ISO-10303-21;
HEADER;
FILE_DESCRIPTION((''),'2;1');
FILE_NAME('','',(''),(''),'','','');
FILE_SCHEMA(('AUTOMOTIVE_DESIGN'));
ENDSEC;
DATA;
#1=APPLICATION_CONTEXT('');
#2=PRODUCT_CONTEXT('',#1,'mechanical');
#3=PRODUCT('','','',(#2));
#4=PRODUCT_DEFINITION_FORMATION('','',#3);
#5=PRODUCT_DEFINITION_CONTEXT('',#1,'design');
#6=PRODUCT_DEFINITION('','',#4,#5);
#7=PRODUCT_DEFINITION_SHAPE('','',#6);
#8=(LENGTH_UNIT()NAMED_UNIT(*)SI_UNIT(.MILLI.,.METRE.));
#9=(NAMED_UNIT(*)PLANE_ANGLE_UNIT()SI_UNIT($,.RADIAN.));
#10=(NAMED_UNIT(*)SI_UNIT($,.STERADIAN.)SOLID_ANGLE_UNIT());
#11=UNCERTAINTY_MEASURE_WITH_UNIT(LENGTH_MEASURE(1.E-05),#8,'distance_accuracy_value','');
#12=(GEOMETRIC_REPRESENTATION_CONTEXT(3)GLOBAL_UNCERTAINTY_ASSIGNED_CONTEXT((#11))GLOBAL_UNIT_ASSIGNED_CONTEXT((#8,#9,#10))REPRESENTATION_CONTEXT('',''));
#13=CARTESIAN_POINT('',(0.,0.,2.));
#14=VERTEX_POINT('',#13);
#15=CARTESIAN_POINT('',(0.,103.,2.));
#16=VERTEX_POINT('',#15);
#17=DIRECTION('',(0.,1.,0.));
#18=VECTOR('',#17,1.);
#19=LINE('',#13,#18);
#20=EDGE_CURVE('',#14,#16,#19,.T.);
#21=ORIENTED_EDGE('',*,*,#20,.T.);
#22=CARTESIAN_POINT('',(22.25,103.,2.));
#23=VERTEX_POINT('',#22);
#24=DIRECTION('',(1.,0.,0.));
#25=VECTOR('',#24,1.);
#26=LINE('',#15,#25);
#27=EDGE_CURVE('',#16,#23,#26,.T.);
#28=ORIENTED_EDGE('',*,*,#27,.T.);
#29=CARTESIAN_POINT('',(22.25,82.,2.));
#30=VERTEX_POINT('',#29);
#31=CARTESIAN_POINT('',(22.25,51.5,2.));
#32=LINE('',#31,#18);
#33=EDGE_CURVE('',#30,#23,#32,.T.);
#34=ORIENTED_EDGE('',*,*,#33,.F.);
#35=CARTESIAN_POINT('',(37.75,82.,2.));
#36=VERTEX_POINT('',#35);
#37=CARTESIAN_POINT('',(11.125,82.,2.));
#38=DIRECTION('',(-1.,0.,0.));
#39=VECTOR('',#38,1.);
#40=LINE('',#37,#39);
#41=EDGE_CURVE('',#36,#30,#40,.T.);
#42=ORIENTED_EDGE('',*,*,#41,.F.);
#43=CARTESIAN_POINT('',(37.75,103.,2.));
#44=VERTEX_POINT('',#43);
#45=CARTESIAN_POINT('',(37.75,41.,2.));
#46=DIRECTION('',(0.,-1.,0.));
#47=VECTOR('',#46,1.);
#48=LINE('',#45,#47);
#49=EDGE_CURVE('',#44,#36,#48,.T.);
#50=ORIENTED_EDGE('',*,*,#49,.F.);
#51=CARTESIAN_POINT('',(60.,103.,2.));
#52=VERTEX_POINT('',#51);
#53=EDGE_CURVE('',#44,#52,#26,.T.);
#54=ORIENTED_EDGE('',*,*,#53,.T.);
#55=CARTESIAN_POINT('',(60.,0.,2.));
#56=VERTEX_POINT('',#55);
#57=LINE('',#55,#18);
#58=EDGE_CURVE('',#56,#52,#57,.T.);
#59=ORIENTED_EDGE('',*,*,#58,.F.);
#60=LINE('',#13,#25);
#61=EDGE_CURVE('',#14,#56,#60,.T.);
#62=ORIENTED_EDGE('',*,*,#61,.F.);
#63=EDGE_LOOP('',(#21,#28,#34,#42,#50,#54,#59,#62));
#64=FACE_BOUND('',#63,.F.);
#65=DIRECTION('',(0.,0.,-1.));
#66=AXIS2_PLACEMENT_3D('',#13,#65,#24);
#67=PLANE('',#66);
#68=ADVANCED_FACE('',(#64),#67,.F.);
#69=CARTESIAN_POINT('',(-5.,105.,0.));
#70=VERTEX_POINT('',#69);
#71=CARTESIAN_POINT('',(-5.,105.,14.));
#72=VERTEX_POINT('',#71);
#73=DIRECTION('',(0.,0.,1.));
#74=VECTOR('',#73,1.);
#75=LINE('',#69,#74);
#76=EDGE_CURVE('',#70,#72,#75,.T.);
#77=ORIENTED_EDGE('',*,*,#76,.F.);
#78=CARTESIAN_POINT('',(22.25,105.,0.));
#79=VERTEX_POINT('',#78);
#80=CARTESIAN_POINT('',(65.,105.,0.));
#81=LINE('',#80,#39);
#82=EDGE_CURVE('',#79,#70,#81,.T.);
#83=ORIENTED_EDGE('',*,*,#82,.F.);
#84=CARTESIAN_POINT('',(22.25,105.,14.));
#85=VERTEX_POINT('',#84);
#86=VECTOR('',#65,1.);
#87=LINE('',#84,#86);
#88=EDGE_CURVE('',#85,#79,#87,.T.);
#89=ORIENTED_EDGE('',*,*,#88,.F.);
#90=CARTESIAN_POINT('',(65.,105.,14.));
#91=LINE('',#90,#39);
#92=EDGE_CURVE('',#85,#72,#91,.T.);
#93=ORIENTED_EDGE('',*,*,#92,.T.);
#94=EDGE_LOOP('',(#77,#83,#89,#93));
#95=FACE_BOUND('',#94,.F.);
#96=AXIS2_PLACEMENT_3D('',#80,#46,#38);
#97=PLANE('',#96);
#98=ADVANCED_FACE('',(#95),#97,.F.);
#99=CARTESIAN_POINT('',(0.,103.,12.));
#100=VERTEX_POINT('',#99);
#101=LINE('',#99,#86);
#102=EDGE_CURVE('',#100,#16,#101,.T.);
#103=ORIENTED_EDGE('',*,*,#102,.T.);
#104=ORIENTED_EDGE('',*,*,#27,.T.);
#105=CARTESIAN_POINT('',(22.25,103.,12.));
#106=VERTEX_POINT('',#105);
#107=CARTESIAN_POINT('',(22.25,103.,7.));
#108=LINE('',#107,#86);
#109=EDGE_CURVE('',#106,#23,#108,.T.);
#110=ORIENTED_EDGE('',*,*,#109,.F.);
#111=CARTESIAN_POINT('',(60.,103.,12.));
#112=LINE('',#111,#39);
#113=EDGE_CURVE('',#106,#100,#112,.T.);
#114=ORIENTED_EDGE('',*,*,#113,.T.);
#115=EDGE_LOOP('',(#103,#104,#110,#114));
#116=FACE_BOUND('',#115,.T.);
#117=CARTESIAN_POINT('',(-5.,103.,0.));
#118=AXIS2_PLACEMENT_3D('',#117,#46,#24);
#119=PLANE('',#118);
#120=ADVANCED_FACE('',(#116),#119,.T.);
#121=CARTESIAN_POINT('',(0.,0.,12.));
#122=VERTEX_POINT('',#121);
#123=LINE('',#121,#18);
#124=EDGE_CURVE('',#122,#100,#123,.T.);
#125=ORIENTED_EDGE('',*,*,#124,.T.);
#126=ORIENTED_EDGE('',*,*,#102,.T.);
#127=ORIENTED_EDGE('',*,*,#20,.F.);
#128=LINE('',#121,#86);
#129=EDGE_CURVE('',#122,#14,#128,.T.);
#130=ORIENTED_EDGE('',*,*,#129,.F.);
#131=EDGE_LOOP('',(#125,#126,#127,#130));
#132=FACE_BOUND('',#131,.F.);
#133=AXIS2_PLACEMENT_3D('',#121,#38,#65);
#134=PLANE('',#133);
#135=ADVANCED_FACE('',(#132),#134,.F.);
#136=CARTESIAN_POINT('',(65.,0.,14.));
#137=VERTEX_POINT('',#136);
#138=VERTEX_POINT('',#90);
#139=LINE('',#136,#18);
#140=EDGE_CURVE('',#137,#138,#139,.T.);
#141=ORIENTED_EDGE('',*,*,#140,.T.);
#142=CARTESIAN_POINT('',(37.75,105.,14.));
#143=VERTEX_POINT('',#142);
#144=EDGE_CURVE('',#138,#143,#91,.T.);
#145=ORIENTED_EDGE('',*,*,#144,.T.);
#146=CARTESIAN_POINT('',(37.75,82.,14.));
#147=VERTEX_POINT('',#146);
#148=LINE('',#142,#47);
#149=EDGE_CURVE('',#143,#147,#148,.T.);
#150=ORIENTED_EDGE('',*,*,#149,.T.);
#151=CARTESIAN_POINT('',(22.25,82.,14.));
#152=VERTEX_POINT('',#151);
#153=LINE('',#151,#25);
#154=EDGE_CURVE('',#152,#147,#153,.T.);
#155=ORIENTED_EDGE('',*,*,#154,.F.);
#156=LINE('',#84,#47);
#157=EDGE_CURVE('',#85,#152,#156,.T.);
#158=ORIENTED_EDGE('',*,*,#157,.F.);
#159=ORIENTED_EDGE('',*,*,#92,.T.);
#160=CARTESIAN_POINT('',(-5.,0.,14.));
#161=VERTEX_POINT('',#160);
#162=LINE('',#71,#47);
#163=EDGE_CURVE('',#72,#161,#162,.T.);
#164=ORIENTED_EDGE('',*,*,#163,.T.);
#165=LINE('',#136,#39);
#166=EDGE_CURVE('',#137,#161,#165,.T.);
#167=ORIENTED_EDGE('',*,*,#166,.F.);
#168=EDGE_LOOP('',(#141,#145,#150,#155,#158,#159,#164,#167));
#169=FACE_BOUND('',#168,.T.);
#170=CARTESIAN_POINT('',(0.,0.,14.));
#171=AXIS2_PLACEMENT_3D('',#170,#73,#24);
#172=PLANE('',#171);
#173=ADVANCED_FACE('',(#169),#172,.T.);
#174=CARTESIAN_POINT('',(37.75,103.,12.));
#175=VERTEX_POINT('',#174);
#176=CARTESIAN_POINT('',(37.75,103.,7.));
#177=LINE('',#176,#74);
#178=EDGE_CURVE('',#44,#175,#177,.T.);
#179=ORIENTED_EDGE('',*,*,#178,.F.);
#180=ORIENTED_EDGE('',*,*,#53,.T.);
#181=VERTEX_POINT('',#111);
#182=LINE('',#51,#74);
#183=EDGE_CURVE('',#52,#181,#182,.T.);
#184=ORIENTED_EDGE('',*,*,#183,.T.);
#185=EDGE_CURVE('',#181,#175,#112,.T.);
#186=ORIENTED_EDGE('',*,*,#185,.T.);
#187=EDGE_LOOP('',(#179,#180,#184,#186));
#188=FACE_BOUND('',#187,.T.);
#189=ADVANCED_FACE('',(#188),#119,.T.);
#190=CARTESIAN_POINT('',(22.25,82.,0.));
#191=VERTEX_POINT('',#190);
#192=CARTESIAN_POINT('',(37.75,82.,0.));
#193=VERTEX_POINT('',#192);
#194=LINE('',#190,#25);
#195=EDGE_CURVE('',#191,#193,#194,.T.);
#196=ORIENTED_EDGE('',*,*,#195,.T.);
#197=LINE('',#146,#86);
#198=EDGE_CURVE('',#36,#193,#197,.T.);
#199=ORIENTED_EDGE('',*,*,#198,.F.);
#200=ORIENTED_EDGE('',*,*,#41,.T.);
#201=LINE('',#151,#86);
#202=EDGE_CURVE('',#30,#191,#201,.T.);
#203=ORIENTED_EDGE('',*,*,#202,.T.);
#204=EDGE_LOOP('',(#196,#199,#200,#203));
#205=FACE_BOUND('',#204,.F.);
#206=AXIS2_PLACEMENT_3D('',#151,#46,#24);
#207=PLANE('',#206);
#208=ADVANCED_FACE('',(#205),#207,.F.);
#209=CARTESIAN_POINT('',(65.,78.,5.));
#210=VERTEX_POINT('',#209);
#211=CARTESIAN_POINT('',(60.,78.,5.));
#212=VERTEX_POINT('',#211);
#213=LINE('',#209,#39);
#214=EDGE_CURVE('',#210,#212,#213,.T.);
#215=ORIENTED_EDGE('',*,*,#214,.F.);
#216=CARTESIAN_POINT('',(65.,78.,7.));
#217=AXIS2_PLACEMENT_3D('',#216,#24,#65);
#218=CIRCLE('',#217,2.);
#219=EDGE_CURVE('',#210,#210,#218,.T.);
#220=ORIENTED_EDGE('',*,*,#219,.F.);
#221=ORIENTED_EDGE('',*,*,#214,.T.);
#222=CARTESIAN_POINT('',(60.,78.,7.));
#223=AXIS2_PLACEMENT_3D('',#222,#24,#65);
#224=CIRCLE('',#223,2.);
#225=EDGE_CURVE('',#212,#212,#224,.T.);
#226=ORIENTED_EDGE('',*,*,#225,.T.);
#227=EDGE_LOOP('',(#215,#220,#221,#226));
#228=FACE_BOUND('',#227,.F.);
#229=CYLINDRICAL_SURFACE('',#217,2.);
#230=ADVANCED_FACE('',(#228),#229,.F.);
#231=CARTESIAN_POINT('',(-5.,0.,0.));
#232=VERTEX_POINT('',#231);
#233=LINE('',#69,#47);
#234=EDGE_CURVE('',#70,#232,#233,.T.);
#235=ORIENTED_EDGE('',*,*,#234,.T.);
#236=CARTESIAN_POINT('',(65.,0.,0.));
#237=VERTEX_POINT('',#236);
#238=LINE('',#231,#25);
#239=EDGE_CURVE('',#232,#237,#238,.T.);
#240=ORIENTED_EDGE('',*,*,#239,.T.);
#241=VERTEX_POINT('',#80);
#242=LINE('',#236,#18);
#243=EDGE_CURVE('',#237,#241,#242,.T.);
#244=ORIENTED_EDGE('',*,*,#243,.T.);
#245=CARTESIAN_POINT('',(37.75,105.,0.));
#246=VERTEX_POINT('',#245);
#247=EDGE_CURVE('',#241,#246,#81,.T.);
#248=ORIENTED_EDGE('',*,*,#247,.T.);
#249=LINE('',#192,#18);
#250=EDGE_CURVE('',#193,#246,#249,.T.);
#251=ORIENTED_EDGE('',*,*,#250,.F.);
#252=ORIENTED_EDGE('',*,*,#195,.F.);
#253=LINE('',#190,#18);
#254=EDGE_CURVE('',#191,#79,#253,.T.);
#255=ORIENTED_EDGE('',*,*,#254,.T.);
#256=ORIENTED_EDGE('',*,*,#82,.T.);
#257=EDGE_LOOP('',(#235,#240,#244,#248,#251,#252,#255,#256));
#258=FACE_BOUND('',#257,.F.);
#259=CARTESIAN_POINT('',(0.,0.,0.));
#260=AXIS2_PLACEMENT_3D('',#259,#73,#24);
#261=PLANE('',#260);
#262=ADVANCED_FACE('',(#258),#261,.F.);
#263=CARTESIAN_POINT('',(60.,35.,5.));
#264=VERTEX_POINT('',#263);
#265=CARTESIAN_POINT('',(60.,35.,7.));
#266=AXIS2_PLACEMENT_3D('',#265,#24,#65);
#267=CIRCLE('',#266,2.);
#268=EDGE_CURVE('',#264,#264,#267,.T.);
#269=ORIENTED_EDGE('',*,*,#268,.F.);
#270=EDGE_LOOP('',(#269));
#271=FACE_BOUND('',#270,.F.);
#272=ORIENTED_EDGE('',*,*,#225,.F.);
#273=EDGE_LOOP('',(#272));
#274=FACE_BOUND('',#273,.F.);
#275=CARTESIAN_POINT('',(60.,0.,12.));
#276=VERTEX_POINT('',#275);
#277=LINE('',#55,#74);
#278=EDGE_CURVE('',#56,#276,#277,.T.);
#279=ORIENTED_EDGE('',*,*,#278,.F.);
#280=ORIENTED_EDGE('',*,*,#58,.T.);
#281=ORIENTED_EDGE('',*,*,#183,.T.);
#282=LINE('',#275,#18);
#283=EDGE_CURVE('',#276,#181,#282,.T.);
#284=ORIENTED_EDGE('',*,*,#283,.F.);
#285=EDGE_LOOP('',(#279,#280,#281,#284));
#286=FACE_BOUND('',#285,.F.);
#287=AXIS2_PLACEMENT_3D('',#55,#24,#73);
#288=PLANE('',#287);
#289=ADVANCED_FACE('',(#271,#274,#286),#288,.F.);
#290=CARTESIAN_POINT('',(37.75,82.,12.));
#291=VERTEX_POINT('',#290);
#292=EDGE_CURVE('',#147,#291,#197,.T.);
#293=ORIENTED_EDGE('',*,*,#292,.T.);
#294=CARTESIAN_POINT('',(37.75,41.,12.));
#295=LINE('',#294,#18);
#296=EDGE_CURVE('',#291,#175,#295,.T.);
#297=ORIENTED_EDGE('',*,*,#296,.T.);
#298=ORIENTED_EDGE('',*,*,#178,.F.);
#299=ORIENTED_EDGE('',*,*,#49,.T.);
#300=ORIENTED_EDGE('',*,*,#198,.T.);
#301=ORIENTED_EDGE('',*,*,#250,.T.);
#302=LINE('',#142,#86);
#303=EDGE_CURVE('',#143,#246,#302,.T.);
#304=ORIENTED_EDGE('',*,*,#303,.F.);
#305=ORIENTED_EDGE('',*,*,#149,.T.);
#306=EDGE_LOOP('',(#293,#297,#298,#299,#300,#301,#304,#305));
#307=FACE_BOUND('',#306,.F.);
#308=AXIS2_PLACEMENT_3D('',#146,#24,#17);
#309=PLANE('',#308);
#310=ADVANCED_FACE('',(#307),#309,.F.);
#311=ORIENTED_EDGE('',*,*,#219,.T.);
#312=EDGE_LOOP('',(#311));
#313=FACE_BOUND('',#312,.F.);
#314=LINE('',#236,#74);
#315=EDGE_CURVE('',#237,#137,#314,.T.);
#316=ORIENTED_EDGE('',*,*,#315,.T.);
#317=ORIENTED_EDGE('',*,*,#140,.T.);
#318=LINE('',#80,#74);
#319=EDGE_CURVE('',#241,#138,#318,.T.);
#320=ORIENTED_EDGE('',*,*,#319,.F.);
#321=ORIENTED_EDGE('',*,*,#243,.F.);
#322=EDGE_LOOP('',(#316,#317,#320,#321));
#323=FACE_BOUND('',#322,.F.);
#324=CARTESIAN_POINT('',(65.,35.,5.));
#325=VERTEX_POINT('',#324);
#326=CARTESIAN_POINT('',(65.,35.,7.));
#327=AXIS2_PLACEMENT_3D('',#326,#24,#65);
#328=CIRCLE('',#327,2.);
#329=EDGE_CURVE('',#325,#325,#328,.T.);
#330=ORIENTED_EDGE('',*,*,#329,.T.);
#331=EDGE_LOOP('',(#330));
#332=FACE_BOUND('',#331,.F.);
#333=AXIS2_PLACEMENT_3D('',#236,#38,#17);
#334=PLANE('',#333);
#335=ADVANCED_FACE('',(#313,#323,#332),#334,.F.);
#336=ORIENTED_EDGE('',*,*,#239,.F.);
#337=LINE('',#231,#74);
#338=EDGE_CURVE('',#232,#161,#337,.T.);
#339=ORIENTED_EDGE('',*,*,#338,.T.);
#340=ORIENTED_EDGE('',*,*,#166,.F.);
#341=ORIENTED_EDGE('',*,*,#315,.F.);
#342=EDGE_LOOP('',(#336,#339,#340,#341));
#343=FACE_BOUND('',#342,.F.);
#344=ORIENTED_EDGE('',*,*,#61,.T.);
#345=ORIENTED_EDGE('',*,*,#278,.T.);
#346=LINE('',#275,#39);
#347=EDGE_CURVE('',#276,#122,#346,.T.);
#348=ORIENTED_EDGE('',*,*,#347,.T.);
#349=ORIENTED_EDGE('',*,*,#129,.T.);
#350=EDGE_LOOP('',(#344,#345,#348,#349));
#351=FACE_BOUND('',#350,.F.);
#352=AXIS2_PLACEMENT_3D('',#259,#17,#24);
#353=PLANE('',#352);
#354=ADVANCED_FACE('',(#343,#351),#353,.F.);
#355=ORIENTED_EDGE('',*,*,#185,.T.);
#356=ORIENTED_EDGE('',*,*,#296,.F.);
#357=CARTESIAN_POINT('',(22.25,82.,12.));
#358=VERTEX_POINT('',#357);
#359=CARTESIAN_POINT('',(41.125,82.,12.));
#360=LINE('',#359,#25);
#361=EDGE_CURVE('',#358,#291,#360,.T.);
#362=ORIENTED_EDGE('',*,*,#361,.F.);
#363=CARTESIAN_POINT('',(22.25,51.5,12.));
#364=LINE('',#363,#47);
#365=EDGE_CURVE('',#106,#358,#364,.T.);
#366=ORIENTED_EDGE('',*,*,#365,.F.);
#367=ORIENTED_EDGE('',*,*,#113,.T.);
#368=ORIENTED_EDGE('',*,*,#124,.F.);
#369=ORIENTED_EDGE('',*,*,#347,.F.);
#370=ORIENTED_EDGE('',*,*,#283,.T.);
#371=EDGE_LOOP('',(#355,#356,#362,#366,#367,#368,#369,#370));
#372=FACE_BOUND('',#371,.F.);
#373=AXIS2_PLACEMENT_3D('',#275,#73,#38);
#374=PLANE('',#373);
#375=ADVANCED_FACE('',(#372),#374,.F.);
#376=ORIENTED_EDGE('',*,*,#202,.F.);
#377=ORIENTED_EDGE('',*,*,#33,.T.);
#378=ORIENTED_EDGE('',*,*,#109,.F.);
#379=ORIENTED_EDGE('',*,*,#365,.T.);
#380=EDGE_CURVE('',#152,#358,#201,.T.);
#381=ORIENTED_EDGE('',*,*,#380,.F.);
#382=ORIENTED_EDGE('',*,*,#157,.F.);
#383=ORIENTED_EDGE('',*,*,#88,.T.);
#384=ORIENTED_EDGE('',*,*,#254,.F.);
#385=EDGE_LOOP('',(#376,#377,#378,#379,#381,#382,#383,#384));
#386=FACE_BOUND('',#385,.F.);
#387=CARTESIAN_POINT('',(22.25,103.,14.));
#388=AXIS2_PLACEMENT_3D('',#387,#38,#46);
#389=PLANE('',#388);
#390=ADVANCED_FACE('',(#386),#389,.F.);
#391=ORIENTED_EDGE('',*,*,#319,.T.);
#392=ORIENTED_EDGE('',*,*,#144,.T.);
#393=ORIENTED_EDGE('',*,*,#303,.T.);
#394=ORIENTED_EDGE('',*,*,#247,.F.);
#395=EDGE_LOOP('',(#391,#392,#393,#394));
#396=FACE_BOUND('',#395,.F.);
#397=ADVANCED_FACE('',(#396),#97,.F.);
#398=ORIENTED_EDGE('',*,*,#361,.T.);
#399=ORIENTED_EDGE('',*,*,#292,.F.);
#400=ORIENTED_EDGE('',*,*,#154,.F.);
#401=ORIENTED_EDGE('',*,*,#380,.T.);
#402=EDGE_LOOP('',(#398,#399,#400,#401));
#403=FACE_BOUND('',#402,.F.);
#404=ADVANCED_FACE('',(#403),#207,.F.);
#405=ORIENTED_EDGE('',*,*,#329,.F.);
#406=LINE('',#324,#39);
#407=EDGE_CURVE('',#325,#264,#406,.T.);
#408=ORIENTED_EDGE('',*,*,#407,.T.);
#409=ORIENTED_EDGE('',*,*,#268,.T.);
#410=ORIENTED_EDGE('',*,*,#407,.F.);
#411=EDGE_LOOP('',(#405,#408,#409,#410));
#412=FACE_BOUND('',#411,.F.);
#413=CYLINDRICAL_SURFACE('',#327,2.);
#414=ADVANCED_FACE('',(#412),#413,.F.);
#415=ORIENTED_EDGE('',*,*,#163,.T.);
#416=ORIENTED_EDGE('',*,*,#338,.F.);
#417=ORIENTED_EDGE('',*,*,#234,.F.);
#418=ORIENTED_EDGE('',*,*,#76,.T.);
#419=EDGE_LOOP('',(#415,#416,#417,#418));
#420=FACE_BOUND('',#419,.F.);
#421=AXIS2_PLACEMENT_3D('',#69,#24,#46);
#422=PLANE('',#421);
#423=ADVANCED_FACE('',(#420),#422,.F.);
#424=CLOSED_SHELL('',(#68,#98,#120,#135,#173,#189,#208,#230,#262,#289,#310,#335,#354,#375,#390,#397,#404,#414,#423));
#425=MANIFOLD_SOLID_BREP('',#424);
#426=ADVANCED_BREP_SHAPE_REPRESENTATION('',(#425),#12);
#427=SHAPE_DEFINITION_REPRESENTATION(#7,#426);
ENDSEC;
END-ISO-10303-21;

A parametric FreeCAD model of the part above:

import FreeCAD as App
import Part
import Sketcher
from FreeCAD import Vector


def add_polygon(sketch, points):
    """Adds a closed chain of lines whose ends are joined by coincident constraints."""
    first, n = sketch.GeometryCount, len(points)
    for a, b in zip(points, points[1:] + points[:1]):
        sketch.addGeometry(Part.LineSegment(App.Vector(*a, 0), App.Vector(*b, 0)), False)
    for i in range(n):
        sketch.addConstraint(Sketcher.Constraint("Coincident", first + i, 2, first + (i + 1) % n, 1))

doc = App.newDocument("Part")
body = doc.addObject("PartDesign::Body", "Body")

sketch1 = body.newObject("Sketcher::SketchObject", "Sketch")
sketch1.AttachmentSupport = (doc.getObject("XY_Plane"), [""])
sketch1.MapMode = "FlatFace"
add_polygon(sketch1, [(65, 0), (65, 105), (-5, 105), (-5, 0)])
sketch1.addConstraint([
    Sketcher.Constraint("Vertical", 0),
    Sketcher.Constraint("Horizontal", 1),
    Sketcher.Constraint("Vertical", 2),
    Sketcher.Constraint("Horizontal", 3),
    Sketcher.Constraint("PointOnObject", 2, 2, -1),
    Sketcher.Constraint("DistanceX", 1, 2, -1, 1, 5.0),
    Sketcher.Constraint("DistanceX", 1, 2, 1, 1, 70.0),
    Sketcher.Constraint("DistanceY", 0, 1, 0, 2, 105.0),
])
pad1 = body.newObject("PartDesign::Pad", "Pad")
pad1.Profile = sketch1
pad1.Length = 14

sketch2 = body.newObject("Sketcher::SketchObject", "Sketch001")
sketch2.AttachmentSupport = (doc.getObject("XZ_Plane"), [""])
sketch2.MapMode = "FlatFace"
add_polygon(sketch2, [(0, 12), (0, 2), (60, 2), (60, 12)])
sketch2.addConstraint([
    Sketcher.Constraint("Vertical", 0),
    Sketcher.Constraint("Horizontal", 1),
    Sketcher.Constraint("Vertical", 2),
    Sketcher.Constraint("Horizontal", 3),
    Sketcher.Constraint("PointOnObject", 0, 2, -2),
    Sketcher.Constraint("DistanceY", -1, 1, 0, 2, 2.0),
    Sketcher.Constraint("DistanceX", 1, 1, 1, 2, 60.0),
    Sketcher.Constraint("DistanceY", 0, 2, 0, 1, 10.0),
])
pocket1 = body.newObject("PartDesign::Pocket", "Pocket")
pocket1.Profile = sketch2
pocket1.Length = 103

sketch3 = body.newObject("Sketcher::SketchObject", "Sketch002")
sketch3.AttachmentSupport = (doc.getObject("XY_Plane"), [""])
sketch3.MapMode = "FlatFace"
sketch3.AttachmentOffset = App.Placement(Vector(0, 0, 14), App.Rotation())
add_polygon(sketch3, [(37.75, 82), (37.75, 105), (22.25, 105), (22.25, 82)])
sketch3.addConstraint([
    Sketcher.Constraint("Vertical", 0),
    Sketcher.Constraint("Horizontal", 1),
    Sketcher.Constraint("Vertical", 2),
    Sketcher.Constraint("Horizontal", 3),
    Sketcher.Constraint("DistanceX", 1, 2, 1, 1, 15.5),
    Sketcher.Constraint("DistanceY", 0, 1, 0, 2, 23.0),
    Sketcher.Constraint("DistanceX", -1, 1, 1, 2, 22.25),
    Sketcher.Constraint("DistanceY", -1, 1, 0, 2, 105.0),
])
pocket2 = body.newObject("PartDesign::Pocket", "Pocket001")
pocket2.Profile = sketch3
pocket2.Length = 14

sketch4 = body.newObject("Sketcher::SketchObject", "Sketch003")
sketch4.AttachmentSupport = (doc.getObject("YZ_Plane"), [""])
sketch4.MapMode = "FlatFace"
sketch4.AttachmentOffset = App.Placement(Vector(0, 0, 65), App.Rotation())
sketch4.addGeometry([
    Part.Circle(Vector(78, 7, 0), Vector(0, 0, 1), 2),
    Part.Circle(Vector(35, 7, 0), Vector(0, 0, 1), 2),
], False)
sketch4.addConstraint([
    Sketcher.Constraint("Equal", 0, 1),
    Sketcher.Constraint("Horizontal", 0, 3, 1, 3),
    Sketcher.Constraint("Diameter", 0, 4.0),
    Sketcher.Constraint("DistanceX", -1, 1, 1, 3, 35.0),
    Sketcher.Constraint("DistanceX", -1, 1, 0, 3, 78.0),
    Sketcher.Constraint("DistanceY", -1, 1, 0, 3, 7.0),
])
pocket3 = body.newObject("PartDesign::Pocket", "Pocket002")
pocket3.Profile = sketch4
pocket3.Length = 42.75

doc.recompute()
